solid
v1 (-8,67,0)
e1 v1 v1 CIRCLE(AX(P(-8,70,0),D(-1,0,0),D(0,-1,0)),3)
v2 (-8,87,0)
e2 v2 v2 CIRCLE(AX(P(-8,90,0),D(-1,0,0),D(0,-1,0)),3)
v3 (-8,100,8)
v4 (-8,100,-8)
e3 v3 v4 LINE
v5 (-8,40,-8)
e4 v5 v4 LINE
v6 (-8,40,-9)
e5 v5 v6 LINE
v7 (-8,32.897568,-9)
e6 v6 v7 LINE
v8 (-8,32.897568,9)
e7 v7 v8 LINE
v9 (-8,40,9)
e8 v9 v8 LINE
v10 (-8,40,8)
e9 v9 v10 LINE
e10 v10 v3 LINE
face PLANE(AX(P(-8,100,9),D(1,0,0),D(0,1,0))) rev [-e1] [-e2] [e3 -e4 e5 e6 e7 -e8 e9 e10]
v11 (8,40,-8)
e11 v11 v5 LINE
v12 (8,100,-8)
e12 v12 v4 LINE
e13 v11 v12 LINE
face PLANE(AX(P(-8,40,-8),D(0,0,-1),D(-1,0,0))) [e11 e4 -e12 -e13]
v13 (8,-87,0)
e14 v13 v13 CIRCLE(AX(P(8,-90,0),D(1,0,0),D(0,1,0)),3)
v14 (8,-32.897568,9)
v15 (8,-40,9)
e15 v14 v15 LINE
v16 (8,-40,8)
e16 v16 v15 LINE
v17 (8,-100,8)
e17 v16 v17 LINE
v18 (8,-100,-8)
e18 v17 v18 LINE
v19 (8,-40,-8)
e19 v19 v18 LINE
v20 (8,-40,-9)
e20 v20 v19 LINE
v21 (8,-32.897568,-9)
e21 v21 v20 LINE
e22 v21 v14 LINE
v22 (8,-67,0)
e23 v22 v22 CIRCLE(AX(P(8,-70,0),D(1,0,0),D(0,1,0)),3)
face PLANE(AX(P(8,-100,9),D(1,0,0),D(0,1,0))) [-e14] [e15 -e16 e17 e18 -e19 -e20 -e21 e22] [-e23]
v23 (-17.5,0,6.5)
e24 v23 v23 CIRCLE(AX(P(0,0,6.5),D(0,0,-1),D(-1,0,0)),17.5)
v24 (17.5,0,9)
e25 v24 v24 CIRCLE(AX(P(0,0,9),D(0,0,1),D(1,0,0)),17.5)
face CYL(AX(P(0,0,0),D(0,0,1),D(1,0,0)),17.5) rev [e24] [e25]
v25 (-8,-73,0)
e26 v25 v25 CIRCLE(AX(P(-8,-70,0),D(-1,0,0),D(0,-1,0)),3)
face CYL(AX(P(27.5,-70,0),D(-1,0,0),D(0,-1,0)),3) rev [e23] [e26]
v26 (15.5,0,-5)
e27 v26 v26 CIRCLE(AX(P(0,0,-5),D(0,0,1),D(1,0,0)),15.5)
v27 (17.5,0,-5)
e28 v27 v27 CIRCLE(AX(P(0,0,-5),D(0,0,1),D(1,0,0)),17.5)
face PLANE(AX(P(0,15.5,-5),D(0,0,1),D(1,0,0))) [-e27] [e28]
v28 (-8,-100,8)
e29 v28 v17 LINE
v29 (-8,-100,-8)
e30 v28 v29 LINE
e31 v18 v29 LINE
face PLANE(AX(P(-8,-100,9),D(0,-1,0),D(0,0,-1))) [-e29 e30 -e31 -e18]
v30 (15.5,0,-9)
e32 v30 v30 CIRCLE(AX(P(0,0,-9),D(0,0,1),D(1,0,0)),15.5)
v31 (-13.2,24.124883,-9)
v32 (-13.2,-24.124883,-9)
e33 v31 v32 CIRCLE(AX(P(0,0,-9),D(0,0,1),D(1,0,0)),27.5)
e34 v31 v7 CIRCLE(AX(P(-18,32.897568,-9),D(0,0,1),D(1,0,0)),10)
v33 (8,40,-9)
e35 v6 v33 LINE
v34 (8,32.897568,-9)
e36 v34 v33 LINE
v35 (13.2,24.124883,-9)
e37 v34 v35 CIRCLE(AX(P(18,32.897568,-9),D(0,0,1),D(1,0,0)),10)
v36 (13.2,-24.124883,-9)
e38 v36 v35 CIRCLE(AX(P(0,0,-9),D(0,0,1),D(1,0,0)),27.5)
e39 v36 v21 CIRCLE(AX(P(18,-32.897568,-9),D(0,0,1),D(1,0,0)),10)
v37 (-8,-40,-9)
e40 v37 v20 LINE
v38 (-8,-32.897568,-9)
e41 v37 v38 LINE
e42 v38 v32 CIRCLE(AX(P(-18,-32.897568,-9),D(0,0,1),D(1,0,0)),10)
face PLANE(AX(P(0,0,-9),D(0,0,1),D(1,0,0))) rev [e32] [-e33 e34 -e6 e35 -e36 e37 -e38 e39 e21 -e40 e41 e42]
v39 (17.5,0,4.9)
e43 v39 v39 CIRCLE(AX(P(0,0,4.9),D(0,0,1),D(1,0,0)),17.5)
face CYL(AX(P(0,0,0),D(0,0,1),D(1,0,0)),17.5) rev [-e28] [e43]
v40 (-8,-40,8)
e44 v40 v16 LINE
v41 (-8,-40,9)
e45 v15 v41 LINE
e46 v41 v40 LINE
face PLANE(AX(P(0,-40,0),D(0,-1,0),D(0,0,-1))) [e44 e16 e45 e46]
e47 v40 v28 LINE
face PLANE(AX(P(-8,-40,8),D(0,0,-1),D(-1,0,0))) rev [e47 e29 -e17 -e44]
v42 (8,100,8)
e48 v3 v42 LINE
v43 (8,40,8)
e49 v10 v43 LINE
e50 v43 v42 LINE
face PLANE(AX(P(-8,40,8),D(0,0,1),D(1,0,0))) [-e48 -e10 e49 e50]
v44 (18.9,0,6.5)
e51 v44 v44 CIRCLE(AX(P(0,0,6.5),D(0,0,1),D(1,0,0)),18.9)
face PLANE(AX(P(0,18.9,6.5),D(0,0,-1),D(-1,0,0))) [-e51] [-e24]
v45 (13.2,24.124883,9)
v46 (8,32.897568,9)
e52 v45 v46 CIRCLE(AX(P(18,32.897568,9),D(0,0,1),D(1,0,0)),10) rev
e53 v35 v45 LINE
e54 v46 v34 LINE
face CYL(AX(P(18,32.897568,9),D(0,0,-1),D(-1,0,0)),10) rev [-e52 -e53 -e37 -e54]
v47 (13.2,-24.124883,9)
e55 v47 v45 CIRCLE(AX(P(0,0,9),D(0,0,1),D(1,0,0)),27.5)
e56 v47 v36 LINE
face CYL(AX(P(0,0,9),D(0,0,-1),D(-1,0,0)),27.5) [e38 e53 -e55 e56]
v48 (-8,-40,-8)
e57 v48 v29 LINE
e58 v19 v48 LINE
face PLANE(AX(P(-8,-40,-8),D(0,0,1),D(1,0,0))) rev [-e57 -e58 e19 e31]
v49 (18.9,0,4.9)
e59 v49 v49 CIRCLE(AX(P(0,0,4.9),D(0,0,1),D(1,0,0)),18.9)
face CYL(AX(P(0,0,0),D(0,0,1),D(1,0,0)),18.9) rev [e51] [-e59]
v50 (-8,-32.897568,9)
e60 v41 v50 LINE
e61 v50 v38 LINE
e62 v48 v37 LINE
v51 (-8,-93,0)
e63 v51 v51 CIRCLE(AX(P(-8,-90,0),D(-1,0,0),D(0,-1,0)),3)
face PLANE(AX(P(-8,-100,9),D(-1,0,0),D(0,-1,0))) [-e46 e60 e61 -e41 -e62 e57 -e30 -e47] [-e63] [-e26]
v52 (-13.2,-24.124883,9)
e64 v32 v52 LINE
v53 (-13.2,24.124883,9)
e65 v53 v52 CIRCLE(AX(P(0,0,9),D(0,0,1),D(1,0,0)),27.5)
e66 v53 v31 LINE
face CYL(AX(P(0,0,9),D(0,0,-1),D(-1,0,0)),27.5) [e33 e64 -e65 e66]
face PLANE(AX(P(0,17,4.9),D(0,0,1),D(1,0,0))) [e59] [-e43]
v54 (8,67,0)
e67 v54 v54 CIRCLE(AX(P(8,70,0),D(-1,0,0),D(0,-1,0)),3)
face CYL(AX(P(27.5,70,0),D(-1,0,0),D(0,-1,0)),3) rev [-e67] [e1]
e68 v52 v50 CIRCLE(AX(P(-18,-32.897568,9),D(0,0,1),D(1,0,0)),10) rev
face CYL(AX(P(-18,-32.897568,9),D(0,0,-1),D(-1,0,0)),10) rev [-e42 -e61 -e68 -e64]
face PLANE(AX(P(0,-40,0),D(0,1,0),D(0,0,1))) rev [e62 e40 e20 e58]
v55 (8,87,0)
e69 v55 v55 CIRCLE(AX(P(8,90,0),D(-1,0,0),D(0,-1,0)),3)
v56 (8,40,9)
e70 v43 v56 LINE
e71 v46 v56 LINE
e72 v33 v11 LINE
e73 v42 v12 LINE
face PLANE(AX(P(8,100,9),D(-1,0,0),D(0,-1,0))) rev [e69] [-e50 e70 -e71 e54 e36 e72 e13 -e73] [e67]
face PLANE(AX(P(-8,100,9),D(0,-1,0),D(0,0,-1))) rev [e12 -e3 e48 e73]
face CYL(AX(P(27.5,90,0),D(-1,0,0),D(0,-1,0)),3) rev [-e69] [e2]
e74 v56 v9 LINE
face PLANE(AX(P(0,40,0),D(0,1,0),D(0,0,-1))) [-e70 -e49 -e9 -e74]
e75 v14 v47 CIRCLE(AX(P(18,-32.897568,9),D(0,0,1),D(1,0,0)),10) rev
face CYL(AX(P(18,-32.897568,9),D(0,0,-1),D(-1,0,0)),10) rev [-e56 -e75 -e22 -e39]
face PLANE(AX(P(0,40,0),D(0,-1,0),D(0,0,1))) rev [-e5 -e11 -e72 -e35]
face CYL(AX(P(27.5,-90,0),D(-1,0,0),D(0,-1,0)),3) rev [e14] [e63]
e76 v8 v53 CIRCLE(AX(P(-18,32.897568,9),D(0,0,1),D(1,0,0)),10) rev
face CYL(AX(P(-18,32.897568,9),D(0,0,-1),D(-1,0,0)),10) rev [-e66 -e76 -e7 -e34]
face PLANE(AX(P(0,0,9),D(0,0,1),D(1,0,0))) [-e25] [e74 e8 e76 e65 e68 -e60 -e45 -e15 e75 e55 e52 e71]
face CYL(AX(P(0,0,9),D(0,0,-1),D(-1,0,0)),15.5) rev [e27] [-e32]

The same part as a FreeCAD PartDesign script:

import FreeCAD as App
import Part
import Sketcher
from FreeCAD import Vector


def edges_at(feature, points):
    """Names of the edges that pass closest to the given points."""
    edges = feature.Shape.Edges
    near = lambda p: min(range(len(edges)), key=lambda i: edges[i].distToShape(Part.Vertex(*p))[0])
    return sorted({f"Edge{near(p) + 1}" for p in points})

doc = App.newDocument("Part")
body = doc.addObject("PartDesign::Body", "Body")

sketch1 = body.newObject("Sketcher::SketchObject", "Sketch")
sketch1.AttachmentSupport = (doc.getObject("XY_Plane"), [""])
sketch1.MapMode = "FlatFace"
sketch1.addGeometry(Part.Circle(Vector(0, 0, 0), Vector(0, 0, 1), 27.5), False)
sketch1.addGeometry(Part.Circle(Vector(0, 0, 0), Vector(0, 0, 1), 15.5), False)
sketch1.addConstraint(Sketcher.Constraint("Coincident", 0, 3, -1, 1))
sketch1.addConstraint(Sketcher.Constraint("Coincident", 1, 3, -1, 1))
sketch1.addConstraint(Sketcher.Constraint("Diameter", 0, 55.0))
sketch1.addConstraint(Sketcher.Constraint("Diameter", 1, 31.0))
pad1 = body.newObject("PartDesign::Pad", "Pad")
pad1.Profile = sketch1
pad1.Length = 18
pad1.Midplane = True

sketch2 = body.newObject("Sketcher::SketchObject", "Sketch001")
sketch2.AttachmentSupport = (doc.getObject("XY_Plane"), [""])
sketch2.MapMode = "FlatFace"
sketch2.addGeometry(Part.LineSegment(Vector(8, 100, 0), Vector(-8, 100, 0)), False)
sketch2.addGeometry(Part.LineSegment(Vector(-8, 100, 0), Vector(-8, 26.310644, 0)), False)
sketch2.addGeometry(Part.LineSegment(Vector(-8, 26.310644, 0), Vector(0, 27.5, 0)), False)
sketch2.addGeometry(Part.LineSegment(Vector(0, 27.5, 0), Vector(8, 26.310644, 0)), False)
sketch2.addGeometry(Part.LineSegment(Vector(8, 26.310644, 0), Vector(8, 100, 0)), False)
sketch2.addConstraint(Sketcher.Constraint("Coincident", 0, 2, 1, 1))
sketch2.addConstraint(Sketcher.Constraint("Coincident", 1, 2, 2, 1))
sketch2.addConstraint(Sketcher.Constraint("Coincident", 2, 2, 3, 1))
sketch2.addConstraint(Sketcher.Constraint("Coincident", 3, 2, 4, 1))
sketch2.addConstraint(Sketcher.Constraint("Coincident", 4, 2, 0, 1))
sketch2.addConstraint(Sketcher.Constraint("Horizontal", 0))
sketch2.addConstraint(Sketcher.Constraint("Vertical", 1))
sketch2.addConstraint(Sketcher.Constraint("Vertical", 4))
sketch2.addConstraint(Sketcher.Constraint("Symmetric", 1, 2, 3, 2, -2))
sketch2.addConstraint(Sketcher.Constraint("PointOnObject", 2, 2, -2))
sketch2.addConstraint(Sketcher.Constraint("DistanceX", 0, 2, 0, 1, 16.0))
sketch2.addConstraint(Sketcher.Constraint("DistanceY", -1, 1, 0, 2, 100.0))
sketch2.addConstraint(Sketcher.Constraint("DistanceY", -1, 1, 2, 2, 27.5))
sketch2.addConstraint(Sketcher.Constraint("DistanceY", 1, 2, 1, 1, 73.689356))
pad2 = body.newObject("PartDesign::Pad", "Pad001")
pad2.Profile = sketch2
pad2.Length = 18
pad2.Midplane = True
doc.recompute()

mirrored = body.newObject("PartDesign::Mirrored", "Mirrored")
mirrored.Originals = [pad2]
mirrored.MirrorPlane = (doc.getObject("XZ_Plane"), [""])
body.Tip = mirrored

sketch3 = body.newObject("Sketcher::SketchObject", "Sketch002")
sketch3.AttachmentSupport = (doc.getObject("YZ_Plane"), [""])
sketch3.MapMode = "FlatFace"
sketch3.addGeometry(Part.LineSegment(Vector(17.5, 9, 0), Vector(15.5, 9, 0)), False)
sketch3.addGeometry(Part.LineSegment(Vector(15.5, 9, 0), Vector(15.5, -5, 0)), False)
sketch3.addGeometry(Part.LineSegment(Vector(15.5, -5, 0), Vector(17.5, -5, 0)), False)
sketch3.addGeometry(Part.LineSegment(Vector(17.5, -5, 0), Vector(17.5, 9, 0)), False)
sketch3.addConstraint(Sketcher.Constraint("Coincident", 0, 2, 1, 1))
sketch3.addConstraint(Sketcher.Constraint("Coincident", 1, 2, 2, 1))
sketch3.addConstraint(Sketcher.Constraint("Coincident", 2, 2, 3, 1))
sketch3.addConstraint(Sketcher.Constraint("Coincident", 3, 2, 0, 1))
sketch3.addConstraint(Sketcher.Constraint("Horizontal", 0))
sketch3.addConstraint(Sketcher.Constraint("Vertical", 1))
sketch3.addConstraint(Sketcher.Constraint("Horizontal", 2))
sketch3.addConstraint(Sketcher.Constraint("Vertical", 3))
sketch3.addConstraint(Sketcher.Constraint("DistanceX", 0, 2, 0, 1, 2.0))
sketch3.addConstraint(Sketcher.Constraint("DistanceY", 1, 2, 1, 1, 14.0))
sketch3.addConstraint(Sketcher.Constraint("DistanceY", -1, 1, 0, 2, 9.0))
sketch3.addConstraint(Sketcher.Constraint("DistanceX", -1, 1, 0, 2, 15.5))
groove = body.newObject("PartDesign::Groove", "Groove")
groove.Profile = sketch3
groove.ReferenceAxis = (sketch3, ["V_Axis"])
groove.Angle = 360

sketch4 = body.newObject("Sketcher::SketchObject", "Sketch003")
sketch4.AttachmentSupport = (doc.getObject("YZ_Plane"), [""])
sketch4.MapMode = "FlatFace"
sketch4.addGeometry(Part.LineSegment(Vector(18.9, 6.5, 0), Vector(17, 6.5, 0)), False)
sketch4.addGeometry(Part.LineSegment(Vector(17, 6.5, 0), Vector(17, 4.9, 0)), False)
sketch4.addGeometry(Part.LineSegment(Vector(17, 4.9, 0), Vector(18.9, 4.9, 0)), False)
sketch4.addGeometry(Part.LineSegment(Vector(18.9, 4.9, 0), Vector(18.9, 6.5, 0)), False)
sketch4.addConstraint(Sketcher.Constraint("Coincident", 0, 2, 1, 1))
sketch4.addConstraint(Sketcher.Constraint("Coincident", 1, 2, 2, 1))
sketch4.addConstraint(Sketcher.Constraint("Coincident", 2, 2, 3, 1))
sketch4.addConstraint(Sketcher.Constraint("Coincident", 3, 2, 0, 1))
sketch4.addConstraint(Sketcher.Constraint("Horizontal", 0))
sketch4.addConstraint(Sketcher.Constraint("Vertical", 1))
sketch4.addConstraint(Sketcher.Constraint("Horizontal", 2))
sketch4.addConstraint(Sketcher.Constraint("Vertical", 3))
sketch4.addConstraint(Sketcher.Constraint("DistanceX", 0, 2, 0, 1, 1.9))
sketch4.addConstraint(Sketcher.Constraint("DistanceY", 1, 2, 1, 1, 1.6))
sketch4.addConstraint(Sketcher.Constraint("DistanceX", -1, 1, 0, 2, 17.0))
sketch4.addConstraint(Sketcher.Constraint("DistanceY", -1, 1, 0, 2, 6.5))
groove2 = body.newObject("PartDesign::Groove", "Groove001")
groove2.Profile = sketch4
groove2.ReferenceAxis = (sketch4, ["V_Axis"])
groove2.Angle = 360
doc.recompute()

fillet = body.newObject("PartDesign::Fillet", "Fillet")
fillet.Base = (groove2, edges_at(groove2, [
    (8, 26.311, 0),
    (-8, 26.311, 0),
    (8, -26.311, 0),
    (-8, -26.311, 0),
]))
fillet.Radius = 10

sketch5 = body.newObject("Sketcher::SketchObject", "Sketch004")
sketch5.AttachmentSupport = (doc.getObject("XZ_Plane"), [""])
sketch5.MapMode = "FlatFace"
sketch5.AttachmentOffset = App.Placement(Vector(0, 0, 100), App.Rotation())
sketch5.addGeometry(Part.LineSegment(Vector(-8, 9, 0), Vector(-8, 8, 0)), False)
sketch5.addGeometry(Part.LineSegment(Vector(-8, 8, 0), Vector(8, 8, 0)), False)
sketch5.addGeometry(Part.LineSegment(Vector(8, 8, 0), Vector(8, 9, 0)), False)
sketch5.addGeometry(Part.LineSegment(Vector(8, 9, 0), Vector(-8, 9, 0)), False)
sketch5.addGeometry(Part.LineSegment(Vector(-8, -8, 0), Vector(-8, -9, 0)), False)
sketch5.addGeometry(Part.LineSegment(Vector(-8, -9, 0), Vector(8, -9, 0)), False)
sketch5.addGeometry(Part.LineSegment(Vector(8, -9, 0), Vector(8, -8, 0)), False)
sketch5.addGeometry(Part.LineSegment(Vector(8, -8, 0), Vector(-8, -8, 0)), False)
sketch5.addConstraint(Sketcher.Constraint("Coincident", 0, 2, 1, 1))
sketch5.addConstraint(Sketcher.Constraint("Coincident", 1, 2, 2, 1))
sketch5.addConstraint(Sketcher.Constraint("Coincident", 2, 2, 3, 1))
sketch5.addConstraint(Sketcher.Constraint("Coincident", 3, 2, 0, 1))
sketch5.addConstraint(Sketcher.Constraint("Coincident", 4, 2, 5, 1))
sketch5.addConstraint(Sketcher.Constraint("Coincident", 5, 2, 6, 1))
sketch5.addConstraint(Sketcher.Constraint("Coincident", 6, 2, 7, 1))
sketch5.addConstraint(Sketcher.Constraint("Coincident", 7, 2, 4, 1))
sketch5.addConstraint(Sketcher.Constraint("Vertical", 0))
sketch5.addConstraint(Sketcher.Constraint("Horizontal", 1))
sketch5.addConstraint(Sketcher.Constraint("Vertical", 2))
sketch5.addConstraint(Sketcher.Constraint("Horizontal", 3))
sketch5.addConstraint(Sketcher.Constraint("Vertical", 4))
sketch5.addConstraint(Sketcher.Constraint("Horizontal", 5))
sketch5.addConstraint(Sketcher.Constraint("Vertical", 6))
sketch5.addConstraint(Sketcher.Constraint("Horizontal", 7))
sketch5.addConstraint(Sketcher.Constraint("Symmetric", 2, 2, 4, 2, -1, 1))
sketch5.addConstraint(Sketcher.Constraint("Symmetric", 0, 2, 6, 2, -1, 1))
sketch5.addConstraint(Sketcher.Constraint("Vertical", 3, 2, 4, 2))
sketch5.addConstraint(Sketcher.Constraint("DistanceX", 1, 1, 1, 2, 16.0))
sketch5.addConstraint(Sketcher.Constraint("DistanceY", 0, 2, 0, 1, 1.0))
sketch5.addConstraint(Sketcher.Constraint("DistanceY", -1, 1, 0, 2, 8.0))
pocket1 = body.newObject("PartDesign::Pocket", "Pocket")
pocket1.Profile = sketch5
pocket1.Length = 60

sketch6 = body.newObject("Sketcher::SketchObject", "Sketch005")
sketch6.AttachmentSupport = (doc.getObject("YZ_Plane"), [""])
sketch6.MapMode = "FlatFace"
sketch6.AttachmentOffset = App.Placement(Vector(0, 0, -8), App.Rotation())
sketch6.addGeometry(Part.Circle(Vector(90, 0, 0), Vector(0, 0, 1), 3), False)
sketch6.addGeometry(Part.Circle(Vector(70, 0, 0), Vector(0, 0, 1), 3), False)
sketch6.addConstraint(Sketcher.Constraint("Equal", 0, 1))
sketch6.addConstraint(Sketcher.Constraint("PointOnObject", 0, 3, -1))
sketch6.addConstraint(Sketcher.Constraint("PointOnObject", 1, 3, -1))
sketch6.addConstraint(Sketcher.Constraint("Diameter", 0, 6.0))
sketch6.addConstraint(Sketcher.Constraint("DistanceX", -1, 1, 0, 3, 90.0))
sketch6.addConstraint(Sketcher.Constraint("DistanceX", -1, 1, 1, 3, 70.0))
pocket2 = body.newObject("PartDesign::Pocket", "Pocket001")
pocket2.Profile = sketch6
pocket2.Type = "ThroughAll"
pocket2.Reversed = True

sketch7 = body.newObject("Sketcher::SketchObject", "Sketch006")
sketch7.AttachmentSupport = (doc.getObject("YZ_Plane"), [""])
sketch7.MapMode = "FlatFace"
sketch7.AttachmentOffset = App.Placement(Vector(0, 0, -8), App.Rotation())
sketch7.addGeometry(Part.Circle(Vector(-90, 0, 0), Vector(0, 0, 1), 3), False)
sketch7.addGeometry(Part.Circle(Vector(-70, 0, 0), Vector(0, 0, 1), 3), False)
sketch7.addConstraint(Sketcher.Constraint("Equal", 0, 1))
sketch7.addConstraint(Sketcher.Constraint("PointOnObject", 0, 3, -1))
sketch7.addConstraint(Sketcher.Constraint("PointOnObject", 1, 3, -1))
sketch7.addConstraint(Sketcher.Constraint("Diameter", 0, 6.0))
sketch7.addConstraint(Sketcher.Constraint("DistanceX", 0, 3, -1, 1, 90.0))
sketch7.addConstraint(Sketcher.Constraint("DistanceX", 1, 3, -1, 1, 70.0))
pocket3 = body.newObject("PartDesign::Pocket", "Pocket002")
pocket3.Profile = sketch7
pocket3.Type = "ThroughAll"
pocket3.Reversed = True
doc.recompute()

mirrored2 = body.newObject("PartDesign::Mirrored", "Mirrored001")
mirrored2.Originals = [pocket1]
mirrored2.MirrorPlane = (doc.getObject("XZ_Plane"), [""])
body.Tip = mirrored2

doc.recompute()
